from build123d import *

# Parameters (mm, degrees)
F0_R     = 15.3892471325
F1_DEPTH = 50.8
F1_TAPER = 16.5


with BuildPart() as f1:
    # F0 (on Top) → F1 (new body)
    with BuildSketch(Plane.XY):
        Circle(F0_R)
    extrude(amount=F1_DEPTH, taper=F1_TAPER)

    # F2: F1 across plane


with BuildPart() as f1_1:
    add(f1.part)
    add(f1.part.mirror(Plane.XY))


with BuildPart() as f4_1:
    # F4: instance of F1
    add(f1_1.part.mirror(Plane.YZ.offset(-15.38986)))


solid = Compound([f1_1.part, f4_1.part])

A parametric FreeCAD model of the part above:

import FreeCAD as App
import Part
import Sketcher

V = App.Vector
Q = App.Units.Quantity

doc = App.newDocument("Part")
params = doc.addObject("Spreadsheet::Sheet", "Params")
for row, (alias, value) in enumerate([
    ("pad1_length", "2 in"),
    ("pad1_taper", "-16.5 deg"),
], start=1):
    params.set(f"A{row}", alias)
    params.set(f"B{row}", "=" + value)
    params.setAlias(f"B{row}", alias)

body = doc.addObject("PartDesign::Body", "Body")

# Sketch on XY plane
sketch1 = body.newObject("Sketcher::SketchObject", "Sketch")
sketch1.AttachmentSupport = (doc.getObject("XY_Plane"), [""])
sketch1.MapMode = "FlatFace"
sketch1.addGeometry(Part.Circle(V(0, 0, 0), V(0, 0, 1), 15), False)
sketch1.addConstraint([
    Sketcher.Constraint("Coincident", 0, 3, -1, 1),
    Sketcher.Constraint("Diameter", 0, Q("30.778494 mm")),
])
pad1 = body.newObject("PartDesign::Pad", "Pad")
pad1.Profile = sketch1
pad1.setExpression("Length", "Params.pad1_length")
pad1.setExpression("TaperAngle", "Params.pad1_taper")
body2 = doc.addObject("PartDesign::Body", "Body001")
doc.recompute()

body2.BaseFeature = body
doc.recompute()

mirroring = doc.addObject("Part::Mirroring", "Mirroring")
mirroring.Source = body
mirroring.Base = V(0, 0, 0)
mirroring.Normal = V(0, 0, 1)
body3 = doc.addObject("PartDesign::Body", "Body002")
body3.BaseFeature = mirroring
boolean = body2.newObject("PartDesign::Boolean", "Boolean")
boolean.Type = "Fuse"
boolean.addObjects([body3])
doc.recompute()
body4 = doc.addObject("PartDesign::Body", "Body003")
doc.recompute()

mirroring2 = doc.addObject("Part::Mirroring", "Mirroring001")
mirroring2.Source = body2
mirroring2.Base = V(-15.38986, 0, 0)
mirroring2.Normal = V(1, 0, 0)
body4.BaseFeature = mirroring2
doc.recompute()
mirroring.Visibility = False
mirroring2.Visibility = False

doc.recompute()
